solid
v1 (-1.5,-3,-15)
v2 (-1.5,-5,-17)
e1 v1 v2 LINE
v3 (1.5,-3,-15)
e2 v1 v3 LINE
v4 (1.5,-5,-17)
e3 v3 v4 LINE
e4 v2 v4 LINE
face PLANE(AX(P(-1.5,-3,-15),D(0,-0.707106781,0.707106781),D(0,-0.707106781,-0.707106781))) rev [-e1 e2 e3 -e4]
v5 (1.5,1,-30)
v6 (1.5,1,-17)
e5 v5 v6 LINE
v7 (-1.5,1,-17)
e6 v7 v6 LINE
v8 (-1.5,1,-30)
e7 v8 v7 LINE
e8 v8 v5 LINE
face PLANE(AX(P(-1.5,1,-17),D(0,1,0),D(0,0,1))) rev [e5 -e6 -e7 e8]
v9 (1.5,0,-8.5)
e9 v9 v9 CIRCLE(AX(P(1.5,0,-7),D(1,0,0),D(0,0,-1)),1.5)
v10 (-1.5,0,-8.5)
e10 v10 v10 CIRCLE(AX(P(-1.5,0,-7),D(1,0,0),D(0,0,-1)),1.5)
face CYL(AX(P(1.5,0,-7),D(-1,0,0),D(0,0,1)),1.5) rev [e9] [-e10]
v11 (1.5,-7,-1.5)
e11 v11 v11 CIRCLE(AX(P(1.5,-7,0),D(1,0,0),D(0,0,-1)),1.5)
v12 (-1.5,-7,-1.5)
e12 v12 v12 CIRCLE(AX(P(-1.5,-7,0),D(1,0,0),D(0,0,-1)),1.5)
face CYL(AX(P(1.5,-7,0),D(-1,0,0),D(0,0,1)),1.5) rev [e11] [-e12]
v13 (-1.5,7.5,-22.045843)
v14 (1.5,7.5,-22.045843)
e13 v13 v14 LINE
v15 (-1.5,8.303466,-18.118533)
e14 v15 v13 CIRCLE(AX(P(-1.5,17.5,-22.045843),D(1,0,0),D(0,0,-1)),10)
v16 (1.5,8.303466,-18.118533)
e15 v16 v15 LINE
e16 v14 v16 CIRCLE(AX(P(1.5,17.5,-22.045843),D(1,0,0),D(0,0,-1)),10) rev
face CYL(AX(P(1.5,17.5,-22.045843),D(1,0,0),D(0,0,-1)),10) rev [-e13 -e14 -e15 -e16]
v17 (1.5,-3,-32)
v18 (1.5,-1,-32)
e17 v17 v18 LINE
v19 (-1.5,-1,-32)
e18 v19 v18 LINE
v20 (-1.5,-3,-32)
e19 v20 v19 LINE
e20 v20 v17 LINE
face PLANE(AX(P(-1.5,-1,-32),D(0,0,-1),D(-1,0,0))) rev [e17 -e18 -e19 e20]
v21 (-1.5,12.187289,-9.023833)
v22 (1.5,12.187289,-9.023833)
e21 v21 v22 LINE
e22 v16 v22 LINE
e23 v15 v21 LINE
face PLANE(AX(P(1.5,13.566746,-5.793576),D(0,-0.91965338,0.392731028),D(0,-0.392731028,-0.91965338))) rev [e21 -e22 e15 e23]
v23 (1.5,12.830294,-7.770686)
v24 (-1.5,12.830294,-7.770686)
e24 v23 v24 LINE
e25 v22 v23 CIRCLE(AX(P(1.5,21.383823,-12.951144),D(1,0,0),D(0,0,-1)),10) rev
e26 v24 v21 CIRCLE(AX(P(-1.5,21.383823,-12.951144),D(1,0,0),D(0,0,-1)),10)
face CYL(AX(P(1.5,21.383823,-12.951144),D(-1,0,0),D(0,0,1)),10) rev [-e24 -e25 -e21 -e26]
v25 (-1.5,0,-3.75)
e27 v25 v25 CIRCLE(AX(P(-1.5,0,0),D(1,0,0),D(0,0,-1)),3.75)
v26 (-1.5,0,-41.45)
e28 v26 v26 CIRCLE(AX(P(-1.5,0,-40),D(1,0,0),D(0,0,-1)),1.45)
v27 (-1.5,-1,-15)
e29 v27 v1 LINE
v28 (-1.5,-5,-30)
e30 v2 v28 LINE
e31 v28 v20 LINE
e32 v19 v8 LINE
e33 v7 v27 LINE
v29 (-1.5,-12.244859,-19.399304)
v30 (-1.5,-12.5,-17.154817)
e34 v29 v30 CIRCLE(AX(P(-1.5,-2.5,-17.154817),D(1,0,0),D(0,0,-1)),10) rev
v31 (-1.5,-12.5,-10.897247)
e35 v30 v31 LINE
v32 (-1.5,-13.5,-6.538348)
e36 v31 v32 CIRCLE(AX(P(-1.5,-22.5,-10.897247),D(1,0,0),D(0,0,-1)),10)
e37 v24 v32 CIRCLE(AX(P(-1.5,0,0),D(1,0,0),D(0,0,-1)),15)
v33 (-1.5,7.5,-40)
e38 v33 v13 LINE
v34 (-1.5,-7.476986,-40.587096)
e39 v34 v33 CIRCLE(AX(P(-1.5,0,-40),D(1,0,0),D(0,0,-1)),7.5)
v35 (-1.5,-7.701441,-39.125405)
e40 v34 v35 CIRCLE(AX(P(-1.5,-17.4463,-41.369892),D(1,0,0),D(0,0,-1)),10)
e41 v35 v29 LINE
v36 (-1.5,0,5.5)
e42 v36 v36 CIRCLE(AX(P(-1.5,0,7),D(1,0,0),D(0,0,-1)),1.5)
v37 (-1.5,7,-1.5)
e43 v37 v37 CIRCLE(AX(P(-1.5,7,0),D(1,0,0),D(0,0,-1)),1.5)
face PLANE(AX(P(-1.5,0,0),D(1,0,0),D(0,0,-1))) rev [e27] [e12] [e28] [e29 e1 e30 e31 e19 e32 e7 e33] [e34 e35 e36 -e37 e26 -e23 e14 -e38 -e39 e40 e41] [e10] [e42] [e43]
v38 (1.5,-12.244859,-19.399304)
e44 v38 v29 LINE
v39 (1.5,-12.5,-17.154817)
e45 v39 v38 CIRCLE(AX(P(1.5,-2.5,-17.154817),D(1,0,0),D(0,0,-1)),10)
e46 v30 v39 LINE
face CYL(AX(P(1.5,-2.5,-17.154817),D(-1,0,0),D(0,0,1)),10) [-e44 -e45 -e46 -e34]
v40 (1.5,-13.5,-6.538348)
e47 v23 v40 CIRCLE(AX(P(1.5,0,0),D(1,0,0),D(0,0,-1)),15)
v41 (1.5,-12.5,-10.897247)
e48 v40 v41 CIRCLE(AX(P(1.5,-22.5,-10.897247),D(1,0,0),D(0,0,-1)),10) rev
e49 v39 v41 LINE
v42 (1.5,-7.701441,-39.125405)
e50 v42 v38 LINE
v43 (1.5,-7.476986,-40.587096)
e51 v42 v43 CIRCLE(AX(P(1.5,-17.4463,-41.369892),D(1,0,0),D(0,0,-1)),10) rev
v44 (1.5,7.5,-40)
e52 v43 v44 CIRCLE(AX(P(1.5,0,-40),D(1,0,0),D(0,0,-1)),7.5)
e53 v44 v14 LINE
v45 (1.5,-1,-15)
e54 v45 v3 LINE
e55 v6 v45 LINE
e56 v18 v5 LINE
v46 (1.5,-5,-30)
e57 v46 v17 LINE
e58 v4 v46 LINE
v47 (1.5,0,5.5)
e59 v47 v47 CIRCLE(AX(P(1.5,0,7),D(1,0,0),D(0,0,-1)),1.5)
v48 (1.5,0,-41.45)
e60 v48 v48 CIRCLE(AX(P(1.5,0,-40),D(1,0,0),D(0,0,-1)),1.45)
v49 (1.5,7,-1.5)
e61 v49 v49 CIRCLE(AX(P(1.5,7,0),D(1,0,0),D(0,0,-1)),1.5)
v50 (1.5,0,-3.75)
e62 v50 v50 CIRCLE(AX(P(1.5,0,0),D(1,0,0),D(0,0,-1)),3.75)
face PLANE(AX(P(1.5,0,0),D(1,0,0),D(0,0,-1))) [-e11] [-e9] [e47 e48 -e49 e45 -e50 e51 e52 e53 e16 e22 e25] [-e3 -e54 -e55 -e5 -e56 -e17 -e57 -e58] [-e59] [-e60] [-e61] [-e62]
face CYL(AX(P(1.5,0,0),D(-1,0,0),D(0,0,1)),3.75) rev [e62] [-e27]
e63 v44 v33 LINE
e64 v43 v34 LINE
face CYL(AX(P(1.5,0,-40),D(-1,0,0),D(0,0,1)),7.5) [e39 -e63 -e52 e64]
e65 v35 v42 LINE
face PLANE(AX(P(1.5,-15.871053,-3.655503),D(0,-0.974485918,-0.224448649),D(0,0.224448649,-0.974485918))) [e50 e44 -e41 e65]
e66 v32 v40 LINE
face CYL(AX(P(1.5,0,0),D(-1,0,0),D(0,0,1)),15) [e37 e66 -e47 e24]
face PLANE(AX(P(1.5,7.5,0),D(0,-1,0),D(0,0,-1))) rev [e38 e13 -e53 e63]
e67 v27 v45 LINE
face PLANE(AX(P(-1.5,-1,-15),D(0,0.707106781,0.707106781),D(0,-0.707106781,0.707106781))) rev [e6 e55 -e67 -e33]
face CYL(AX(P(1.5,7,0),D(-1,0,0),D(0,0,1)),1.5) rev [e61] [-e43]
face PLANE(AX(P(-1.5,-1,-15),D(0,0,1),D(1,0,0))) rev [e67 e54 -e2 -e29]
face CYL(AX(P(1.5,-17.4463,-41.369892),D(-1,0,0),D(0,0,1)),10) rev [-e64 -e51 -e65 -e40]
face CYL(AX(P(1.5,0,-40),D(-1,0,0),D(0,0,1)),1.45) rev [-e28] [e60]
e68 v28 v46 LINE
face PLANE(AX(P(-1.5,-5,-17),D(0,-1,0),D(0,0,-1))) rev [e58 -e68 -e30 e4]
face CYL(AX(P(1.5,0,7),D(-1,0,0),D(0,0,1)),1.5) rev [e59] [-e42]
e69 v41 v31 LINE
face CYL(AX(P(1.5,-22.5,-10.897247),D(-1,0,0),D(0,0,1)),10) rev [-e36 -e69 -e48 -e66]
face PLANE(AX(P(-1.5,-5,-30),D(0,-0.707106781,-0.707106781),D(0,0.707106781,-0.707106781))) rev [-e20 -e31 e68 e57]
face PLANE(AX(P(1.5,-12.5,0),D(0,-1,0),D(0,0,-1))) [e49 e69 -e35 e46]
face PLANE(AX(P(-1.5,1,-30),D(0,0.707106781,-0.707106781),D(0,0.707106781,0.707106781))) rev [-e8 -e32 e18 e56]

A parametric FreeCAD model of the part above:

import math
import FreeCAD as App
import Part
import Sketcher

V = App.Vector


def edges_at(feature, points):
    """Names of the edges that pass closest to the given points."""
    edges = feature.Shape.Edges
    near = lambda p: min(range(len(edges)), key=lambda i: edges[i].distToShape(Part.Vertex(*p))[0])
    return sorted({f"Edge{near(p) + 1}" for p in points})


def add_polygon(sketch, points):
    """Adds a closed chain of lines whose ends are joined by coincident constraints."""
    first, n = sketch.GeometryCount, len(points)
    for a, b in zip(points, points[1:] + points[:1]):
        sketch.addGeometry(Part.LineSegment(App.Vector(*a, 0), App.Vector(*b, 0)), False)
    for i in range(n):
        sketch.addConstraint(Sketcher.Constraint("Coincident", first + i, 2, first + (i + 1) % n, 1))

doc = App.newDocument("Part")
body = doc.addObject("PartDesign::Body", "Body")

# Sketch on YZ plane
sketch1 = doc.addObject("Sketcher::SketchObject", "Sketch")
body.addObject(sketch1)
sketch1.AttachmentSupport = (doc.YZ_Plane, [""])
sketch1.MapMode = "FlatFace"
sketch1.addGeometry(Part.LineSegment(V(-12.5, -18.3, 0), V(-7.5, -40, 0)), False)
sketch1.addGeometry(Part.ArcOfCircle(Part.Circle(V(0, -40, 0), V(0, 0, 1), 7.5), math.radians(180), math.radians(360)), False)
sketch1.addGeometry(Part.LineSegment(V(7.5, -40, 0), V(7.5, -20, 0)), False)
sketch1.addGeometry(Part.LineSegment(V(7.5, -20, 0), V(12.5, -8.3, 0)), False)
sketch1.addGeometry(Part.ArcOfCircle(Part.Circle(V(0, 0, 0), V(0, 0, 1), 15), math.radians(-34), math.radians(214)), False)
sketch1.addGeometry(Part.LineSegment(V(-12.5, -8.3, 0), V(-12.5, -18.3, 0)), False)
sketch1.addGeometry(Part.Circle(V(-7, 0, 0), V(0, 0, 1), 1.5), False)
sketch1.addGeometry(Part.Circle(V(0, 7, 0), V(0, 0, 1), 1.5), False)
sketch1.addGeometry(Part.Circle(V(0, 0, 0), V(0, 0, 1), 3.8), False)
sketch1.addGeometry(Part.Circle(V(0, -7, 0), V(0, 0, 1), 1.5), False)
sketch1.addGeometry(Part.Circle(V(7, 0, 0), V(0, 0, 1), 1.5), False)
sketch1.addGeometry(Part.Circle(V(0, -40, 0), V(0, 0, 1), 1.4), False)
sketch1.addConstraint(Sketcher.Constraint("Coincident", 0, 2, 1, 1))
sketch1.addConstraint(Sketcher.Constraint("Tangent", 1, 2, 2, 1))
sketch1.addConstraint(Sketcher.Constraint("Coincident", 2, 2, 3, 1))
sketch1.addConstraint(Sketcher.Constraint("Coincident", 3, 2, 4, 1))
sketch1.addConstraint(Sketcher.Constraint("Coincident", 4, 2, 5, 1))
sketch1.addConstraint(Sketcher.Constraint("Coincident", 5, 2, 0, 1))
sketch1.addConstraint(Sketcher.Constraint("Vertical", 2))
sketch1.addConstraint(Sketcher.Constraint("Vertical", 5))
sketch1.addConstraint(Sketcher.Constraint("Coincident", 4, 3, -1, 1))
sketch1.addConstraint(Sketcher.Constraint("Coincident", 8, 3, -1, 1))
sketch1.addConstraint(Sketcher.Constraint("Coincident", 11, 3, 1, 3))
sketch1.addConstraint(Sketcher.Constraint("Equal", 6, 7))
sketch1.addConstraint(Sketcher.Constraint("Equal", 7, 9))
sketch1.addConstraint(Sketcher.Constraint("Equal", 9, 10))
sketch1.addConstraint(Sketcher.Constraint("Symmetric", 7, 3, 9, 3, -1, 1))
sketch1.addConstraint(Sketcher.Constraint("Symmetric", 6, 3, 10, 3, -1, 1))
sketch1.addConstraint(Sketcher.Constraint("Symmetric", 0, 2, 1, 2, -2))
sketch1.addConstraint(Sketcher.Constraint("PointOnObject", 6, 3, -1))
sketch1.addConstraint(Sketcher.Constraint("PointOnObject", 7, 3, -2))
sketch1.addConstraint(Sketcher.Constraint("Horizontal", 3, 2, 4, 2))
sketch1.addConstraint(Sketcher.Constraint("Diameter", 6, 3.0))
sketch1.addConstraint(Sketcher.Constraint("Radius", 4, 15.0))
sketch1.addConstraint(Sketcher.Constraint("Diameter", 8, 7.5))
sketch1.addConstraint(Sketcher.Constraint("Diameter", 11, 2.9))
sketch1.addConstraint(Sketcher.Constraint("Radius", 1, 7.5))
sketch1.addConstraint(Sketcher.Constraint("DistanceY", 2, 1, 2, 2, 20.0))
sketch1.addConstraint(Sketcher.Constraint("DistanceY", 5, 2, 5, 1, 10.0))
sketch1.addConstraint(Sketcher.Constraint("DistanceY", 1, 3, -1, 1, 40.0))
sketch1.addConstraint(Sketcher.Constraint("DistanceX", 6, 3, -1, 1, 7.0))
sketch1.addConstraint(Sketcher.Constraint("DistanceY", -1, 1, 7, 3, 7.0))
sketch1.addConstraint(Sketcher.Constraint("DistanceX", 2, 2, 3, 2, 5.0))
pad1 = doc.addObject("PartDesign::Pad", "Pad")
body.addObject(pad1)
pad1.Profile = sketch1
pad1.Length = 3
pad1.Midplane = True
doc.recompute()

fillet = doc.addObject("PartDesign::Fillet", "Fillet")
body.addObject(fillet)
fillet.Base = (pad1, edges_at(pad1, [
    (0, -12.5, -18.292),
    (0, -12.5, -8.292),
    (0, 12.5, -8.292),
    (0, 7.5, -20),
    (0, -7.5, -40),
]))
fillet.Radius = 10

# Sketch on YZ plane
sketch2 = doc.addObject("Sketcher::SketchObject", "Sketch001")
body.addObject(sketch2)
sketch2.AttachmentSupport = (doc.YZ_Plane, [""])
sketch2.MapMode = "FlatFace"
sketch2.AttachmentOffset = App.Placement(V(0, 0, 1.5), App.Rotation())
add_polygon(sketch2, [(1, -30), (1, -17), (-1, -15), (-3, -15), (-5, -17), (-5, -30), (-3, -32), (-1, -32)])  # lines 0-7
sketch2.addConstraint(Sketcher.Constraint("Vertical", 0))
sketch2.addConstraint(Sketcher.Constraint("Horizontal", 2))
sketch2.addConstraint(Sketcher.Constraint("Vertical", 4))
sketch2.addConstraint(Sketcher.Constraint("Horizontal", 6))
sketch2.addConstraint(Sketcher.Constraint("Perpendicular", 1, 3))
sketch2.addConstraint(Sketcher.Constraint("Perpendicular", 3, 5))
sketch2.addConstraint(Sketcher.Constraint("Perpendicular", 5, 7))
sketch2.addConstraint(Sketcher.Constraint("Horizontal", 0, 2, 3, 2))
sketch2.addConstraint(Sketcher.Constraint("Horizontal", 4, 2, 7, 2))
sketch2.addConstraint(Sketcher.Constraint("Vertical", 2, 2, 5, 2))
sketch2.addConstraint(Sketcher.Constraint("Vertical", 1, 2, 6, 2))
sketch2.addConstraint(Sketcher.Constraint("DistanceX", 2, 2, 2, 1, 2.0))
sketch2.addConstraint(Sketcher.Constraint("DistanceY", 0, 1, 0, 2, 13.0))
sketch2.addConstraint(Sketcher.Constraint("DistanceX", -1, 1, 0, 2, 1.0))
sketch2.addConstraint(Sketcher.Constraint("DistanceY", 0, 2, -1, 1, 17.0))
sketch2.addConstraint(Sketcher.Constraint("DistanceX", 1, 2, -1, 1, 1.0))
pocket1 = doc.addObject("PartDesign::Pocket", "Pocket")
body.addObject(pocket1)
pocket1.Profile = sketch2
pocket1.Length = 3

doc.recompute()
